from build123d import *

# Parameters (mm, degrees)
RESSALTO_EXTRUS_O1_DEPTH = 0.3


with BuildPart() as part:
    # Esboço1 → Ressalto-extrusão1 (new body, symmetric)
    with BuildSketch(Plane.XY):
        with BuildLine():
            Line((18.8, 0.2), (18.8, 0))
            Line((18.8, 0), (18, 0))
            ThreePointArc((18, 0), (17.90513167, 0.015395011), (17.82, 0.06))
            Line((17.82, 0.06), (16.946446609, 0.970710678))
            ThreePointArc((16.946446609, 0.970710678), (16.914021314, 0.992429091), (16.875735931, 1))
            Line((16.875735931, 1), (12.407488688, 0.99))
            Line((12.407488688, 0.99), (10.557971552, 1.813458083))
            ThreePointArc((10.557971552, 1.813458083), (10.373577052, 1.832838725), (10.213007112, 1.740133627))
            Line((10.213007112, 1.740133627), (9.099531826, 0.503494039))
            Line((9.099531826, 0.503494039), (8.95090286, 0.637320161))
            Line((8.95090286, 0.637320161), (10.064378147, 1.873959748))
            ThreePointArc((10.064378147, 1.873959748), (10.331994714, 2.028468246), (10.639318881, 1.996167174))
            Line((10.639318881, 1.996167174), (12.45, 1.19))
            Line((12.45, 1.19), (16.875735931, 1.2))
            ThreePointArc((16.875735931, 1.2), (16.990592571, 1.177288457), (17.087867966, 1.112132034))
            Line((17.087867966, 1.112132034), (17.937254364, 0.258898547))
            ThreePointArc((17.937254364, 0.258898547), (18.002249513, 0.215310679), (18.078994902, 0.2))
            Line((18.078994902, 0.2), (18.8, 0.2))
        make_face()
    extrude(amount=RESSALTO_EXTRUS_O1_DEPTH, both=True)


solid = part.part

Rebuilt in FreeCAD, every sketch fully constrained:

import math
import FreeCAD as App
import Part
import Sketcher
from FreeCAD import Vector
Q = App.Units.Quantity

doc = App.newDocument("Part")
body = doc.addObject("PartDesign::Body", "Body")

# Sketch on XY plane
sketch1 = body.newObject("Sketcher::SketchObject", "Sketch")
sketch1.AttachmentSupport = (doc.getObject("XY_Plane"), [""])
sketch1.MapMode = "FlatFace"
sketch1.addGeometry(Part.LineSegment(Vector(18.8, 0, 0), Vector(18.8, 0.2, 0)), False)
sketch1.addGeometry(Part.LineSegment(Vector(18.8, 0.2, 0), Vector(18.08, 0.2, 0)), False)
sketch1.addGeometry(Part.ArcOfCircle(Part.Circle(Vector(18.08, 0.4, 0), Vector(0, 0, 1), 0.2), math.radians(-135), math.radians(-90)), False)
sketch1.addGeometry(Part.LineSegment(Vector(17.94, 0.26, 0), Vector(17.09, 1.11, 0)), False)
sketch1.addGeometry(Part.ArcOfCircle(Part.Circle(Vector(16.88, 0.9, 0), Vector(0, 0, 1), 0.3), math.radians(45), math.radians(90)), False)
sketch1.addGeometry(Part.LineSegment(Vector(16.88, 1.2, 0), Vector(12.45, 1.19, 0)), False)
sketch1.addGeometry(Part.LineSegment(Vector(12.45, 1.19, 0), Vector(10.64, 2, 0)), False)
sketch1.addGeometry(Part.ArcOfCircle(Part.Circle(Vector(10.44, 1.54, 0), Vector(0, 0, 1), 0.5), math.radians(66), math.radians(138)), False)
sketch1.addGeometry(Part.LineSegment(Vector(10.06, 1.87, 0), Vector(8.95, 0.64, 0)), False)
sketch1.addGeometry(Part.LineSegment(Vector(8.95, 0.64, 0), Vector(9.1, 0.5, 0)), False)
sketch1.addGeometry(Part.LineSegment(Vector(9.1, 0.5, 0), Vector(10.21, 1.74, 0)), False)
sketch1.addGeometry(Part.ArcOfCircle(Part.Circle(Vector(10.44, 1.54, 0), Vector(0, 0, 1), 0.3), math.radians(66), math.radians(138)), False)
sketch1.addGeometry(Part.LineSegment(Vector(10.56, 1.81, 0), Vector(12.41, 0.99, 0)), False)
sketch1.addGeometry(Part.LineSegment(Vector(12.41, 0.99, 0), Vector(16.88, 1, 0)), False)
sketch1.addGeometry(Part.ArcOfCircle(Part.Circle(Vector(16.88, 0.9, 0), Vector(0, 0, 1), 0.1), math.radians(45), math.radians(90)), False)
sketch1.addGeometry(Part.LineSegment(Vector(16.95, 0.97, 0), Vector(17.82, 0.06, 0)), False)
sketch1.addGeometry(Part.ArcOfCircle(Part.Circle(Vector(18, 0.3, 0), Vector(0, 0, 1), 0.3), math.radians(-127), math.radians(-90)), False)
sketch1.addGeometry(Part.LineSegment(Vector(18, 0, 0), Vector(18.8, 0, 0)), False)
sketch1.addConstraint(Sketcher.Constraint("Coincident", 0, 2, 1, 1))
sketch1.addConstraint(Sketcher.Constraint("Tangent", 1, 2, 2, 2))
sketch1.addConstraint(Sketcher.Constraint("Tangent", 2, 1, 3, 1))
sketch1.addConstraint(Sketcher.Constraint("Tangent", 3, 2, 4, 1))
sketch1.addConstraint(Sketcher.Constraint("Tangent", 4, 2, 5, 1))
sketch1.addConstraint(Sketcher.Constraint("Coincident", 5, 2, 6, 1))
sketch1.addConstraint(Sketcher.Constraint("Tangent", 6, 2, 7, 1))
sketch1.addConstraint(Sketcher.Constraint("Tangent", 7, 2, 8, 1))
sketch1.addConstraint(Sketcher.Constraint("Coincident", 8, 2, 9, 1))
sketch1.addConstraint(Sketcher.Constraint("Coincident", 9, 2, 10, 1))
sketch1.addConstraint(Sketcher.Constraint("Tangent", 10, 2, 11, 2))
sketch1.addConstraint(Sketcher.Constraint("Tangent", 11, 1, 12, 1))
sketch1.addConstraint(Sketcher.Constraint("Coincident", 12, 2, 13, 1))
sketch1.addConstraint(Sketcher.Constraint("Tangent", 13, 2, 14, 2))
sketch1.addConstraint(Sketcher.Constraint("Coincident", 14, 1, 15, 1))
sketch1.addConstraint(Sketcher.Constraint("Coincident", 15, 2, 16, 1))
sketch1.addConstraint(Sketcher.Constraint("Tangent", 16, 2, 17, 1))
sketch1.addConstraint(Sketcher.Constraint("Coincident", 17, 2, 0, 1))
sketch1.addConstraint(Sketcher.Constraint("Vertical", 0))
sketch1.addConstraint(Sketcher.Constraint("Horizontal", 1))
sketch1.addConstraint(Sketcher.Constraint("Horizontal", 17))
sketch1.addConstraint(Sketcher.Constraint("Coincident", 11, 3, 7, 3))
sketch1.addConstraint(Sketcher.Constraint("Equal", 11, 16))
sketch1.addConstraint(Sketcher.Constraint("PointOnObject", 16, 2, -1))
sketch1.addConstraint(Sketcher.Constraint("Perpendicular", 8, 9))
sketch1.addConstraint(Sketcher.Constraint("Perpendicular", 9, 10))
sketch1.addConstraint(Sketcher.Constraint("Parallel", 6, 12))
sketch1.addConstraint(Sketcher.Constraint("Vertical", 4, 2, 13, 2))
sketch1.addConstraint(Sketcher.Constraint("Radius", 2, Q("0.2 mm")))
sketch1.addConstraint(Sketcher.Constraint("Radius", 7, Q("0.5 mm")))
sketch1.addConstraint(Sketcher.Constraint("Radius", 11, Q("0.3 mm")))
sketch1.addConstraint(Sketcher.Constraint("Angle", 6, Q("156 deg")))
sketch1.addConstraint(Sketcher.Constraint("Angle", 8, Q("-132 deg")))
sketch1.addConstraint(Sketcher.Constraint("DistanceX", 17, 1, 17, 2, Q("0.8 mm")))
sketch1.addConstraint(Sketcher.Constraint("DistanceY", 0, 1, 0, 2, Q("0.2 mm")))
sketch1.addConstraint(Sketcher.Constraint("DistanceX", -1, 1, 16, 3, Q("18 mm")))
sketch1.addConstraint(Sketcher.Constraint("DistanceY", -1, 1, 13, 2, Q("1 mm")))
sketch1.addConstraint(Sketcher.Constraint("DistanceY", -1, 1, 4, 2, Q("1.2 mm")))
sketch1.addConstraint(Sketcher.Constraint("DistanceY", 12, 2, 5, 2, Q("0.2 mm")))
sketch1.addConstraint(Sketcher.Constraint("DistanceX", -1, 1, 5, 2, Q("12.45 mm")))
sketch1.addConstraint(Sketcher.Constraint("DistanceY", -1, 1, 5, 2, Q("1.19 mm")))
sketch1.addConstraint(Sketcher.Constraint("DistanceX", -1, 1, 15, 2, Q("17.82 mm")))
sketch1.addConstraint(Sketcher.Constraint("Radius", 4, Q("0.298373 mm")))
sketch1.addConstraint(Sketcher.Constraint("Radius", 14, Q("0.099463 mm")))
sketch1.addConstraint(Sketcher.Constraint("DistanceY", -1, 1, 2, 1, Q("0.258899 mm")))
sketch1.addConstraint(Sketcher.Constraint("DistanceY", 9, 2, 11, 3, Q("1.0359 mm")))
sketch1.addConstraint(Sketcher.Constraint("Distance", 12, Q("2.024549 mm")))
sketch1.addConstraint(Sketcher.Constraint("Distance", 13, Q("4.468258 mm")))
sketch1.addConstraint(Sketcher.Constraint("Distance", 15, Q("1.261939 mm")))
pad1 = body.newObject("PartDesign::Pad", "Pad")
pad1.Profile = sketch1
pad1.Length = 0.6
pad1.Midplane = True

doc.recompute()
